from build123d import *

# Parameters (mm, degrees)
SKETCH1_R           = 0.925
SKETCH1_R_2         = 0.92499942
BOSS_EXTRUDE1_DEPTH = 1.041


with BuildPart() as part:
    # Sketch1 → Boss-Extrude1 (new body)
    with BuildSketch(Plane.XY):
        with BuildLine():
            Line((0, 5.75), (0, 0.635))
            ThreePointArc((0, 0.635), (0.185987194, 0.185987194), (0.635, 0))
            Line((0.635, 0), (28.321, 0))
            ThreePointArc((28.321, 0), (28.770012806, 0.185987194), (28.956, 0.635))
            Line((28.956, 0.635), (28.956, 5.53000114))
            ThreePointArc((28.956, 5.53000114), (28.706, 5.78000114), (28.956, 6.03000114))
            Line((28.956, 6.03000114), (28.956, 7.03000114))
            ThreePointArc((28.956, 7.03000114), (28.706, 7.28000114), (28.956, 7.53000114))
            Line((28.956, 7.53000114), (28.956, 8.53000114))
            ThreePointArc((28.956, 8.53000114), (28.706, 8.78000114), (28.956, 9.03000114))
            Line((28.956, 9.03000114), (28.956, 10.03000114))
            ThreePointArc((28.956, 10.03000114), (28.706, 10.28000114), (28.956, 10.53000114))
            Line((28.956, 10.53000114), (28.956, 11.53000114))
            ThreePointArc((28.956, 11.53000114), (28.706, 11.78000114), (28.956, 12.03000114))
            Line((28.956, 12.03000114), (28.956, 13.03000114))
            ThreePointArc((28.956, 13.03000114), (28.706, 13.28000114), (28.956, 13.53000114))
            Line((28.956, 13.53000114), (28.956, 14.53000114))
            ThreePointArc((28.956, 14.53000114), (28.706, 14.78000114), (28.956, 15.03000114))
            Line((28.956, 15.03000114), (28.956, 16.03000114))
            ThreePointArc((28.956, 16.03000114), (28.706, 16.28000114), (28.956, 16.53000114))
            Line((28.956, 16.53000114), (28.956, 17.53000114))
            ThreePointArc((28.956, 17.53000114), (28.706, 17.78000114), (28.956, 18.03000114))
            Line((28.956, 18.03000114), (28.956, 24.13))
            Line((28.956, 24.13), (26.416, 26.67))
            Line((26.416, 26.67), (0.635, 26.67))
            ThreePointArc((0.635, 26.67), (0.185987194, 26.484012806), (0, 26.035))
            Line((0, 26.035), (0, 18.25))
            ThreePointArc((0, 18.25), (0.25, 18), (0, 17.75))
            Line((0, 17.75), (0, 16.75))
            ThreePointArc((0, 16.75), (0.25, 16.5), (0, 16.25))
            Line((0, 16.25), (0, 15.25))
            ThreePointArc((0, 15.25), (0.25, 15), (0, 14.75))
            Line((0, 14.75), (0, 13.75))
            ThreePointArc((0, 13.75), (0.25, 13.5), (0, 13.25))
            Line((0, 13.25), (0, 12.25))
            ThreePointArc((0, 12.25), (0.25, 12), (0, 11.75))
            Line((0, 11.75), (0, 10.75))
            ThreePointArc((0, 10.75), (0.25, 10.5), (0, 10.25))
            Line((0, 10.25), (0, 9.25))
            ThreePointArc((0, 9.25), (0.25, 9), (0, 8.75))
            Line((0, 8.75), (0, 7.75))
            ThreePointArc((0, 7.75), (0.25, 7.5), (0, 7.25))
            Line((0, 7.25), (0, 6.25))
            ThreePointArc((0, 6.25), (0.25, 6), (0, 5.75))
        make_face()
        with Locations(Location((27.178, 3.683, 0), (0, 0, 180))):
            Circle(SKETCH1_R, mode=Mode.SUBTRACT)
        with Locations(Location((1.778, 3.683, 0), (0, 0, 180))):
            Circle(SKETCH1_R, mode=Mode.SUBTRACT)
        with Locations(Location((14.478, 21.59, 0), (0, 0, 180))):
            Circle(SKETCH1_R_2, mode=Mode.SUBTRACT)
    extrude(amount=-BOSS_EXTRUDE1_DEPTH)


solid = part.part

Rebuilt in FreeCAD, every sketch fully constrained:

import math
import FreeCAD as App
import Part
import Sketcher
from FreeCAD import Vector
Q = App.Units.Quantity

doc = App.newDocument("Part")
body = doc.addObject("PartDesign::Body", "Body")

# Sketch on XY plane
sketch1 = body.newObject("Sketcher::SketchObject", "Sketch")
sketch1.AttachmentSupport = (doc.getObject("XY_Plane"), [""])
sketch1.MapMode = "FlatFace"
sketch1.addGeometry([
    Part.LineSegment(Vector(0, 5.75, 0), Vector(0, 0.64, 0)),  # 0
    Part.ArcOfCircle(Part.Circle(Vector(0.64, 0.64, 0), Vector(0, 0, 1), 0.64), math.radians(180), math.radians(270)),  # 1
    Part.LineSegment(Vector(0.64, 0, 0), Vector(28.32, 0, 0)),  # 2
    Part.ArcOfCircle(Part.Circle(Vector(28.32, 0.64, 0), Vector(0, 0, 1), 0.64), math.radians(-90), math.radians(0)),  # 3
    Part.LineSegment(Vector(28.96, 0.64, 0), Vector(28.96, 5.53, 0)),  # 4
    Part.ArcOfCircle(Part.Circle(Vector(28.96, 5.78, 0), Vector(0, 0, 1), 0.25), math.radians(90), math.radians(270)),  # 5
    Part.LineSegment(Vector(28.96, 6.03, 0), Vector(28.96, 7.03, 0)),  # 6
    Part.ArcOfCircle(Part.Circle(Vector(28.96, 7.28, 0), Vector(0, 0, 1), 0.25), math.radians(90), math.radians(270)),  # 7
    Part.LineSegment(Vector(28.96, 7.53, 0), Vector(28.96, 8.53, 0)),  # 8
    Part.ArcOfCircle(Part.Circle(Vector(28.96, 8.78, 0), Vector(0, 0, 1), 0.25), math.radians(90), math.radians(270)),  # 9
    Part.LineSegment(Vector(28.96, 9.03, 0), Vector(28.96, 10.03, 0)),  # 10
    Part.ArcOfCircle(Part.Circle(Vector(28.96, 10.28, 0), Vector(0, 0, 1), 0.25), math.radians(90), math.radians(270)),  # 11
    Part.LineSegment(Vector(28.96, 10.53, 0), Vector(28.96, 11.53, 0)),  # 12
    Part.ArcOfCircle(Part.Circle(Vector(28.96, 11.78, 0), Vector(0, 0, 1), 0.25), math.radians(90), math.radians(270)),  # 13
    Part.LineSegment(Vector(28.96, 12.03, 0), Vector(28.96, 13.03, 0)),  # 14
    Part.ArcOfCircle(Part.Circle(Vector(28.96, 13.28, 0), Vector(0, 0, 1), 0.25), math.radians(90), math.radians(270)),  # 15
    Part.LineSegment(Vector(28.96, 13.53, 0), Vector(28.96, 14.53, 0)),  # 16
    Part.ArcOfCircle(Part.Circle(Vector(28.96, 14.78, 0), Vector(0, 0, 1), 0.25), math.radians(90), math.radians(270)),  # 17
    Part.LineSegment(Vector(28.96, 15.03, 0), Vector(28.96, 16.03, 0)),  # 18
    Part.ArcOfCircle(Part.Circle(Vector(28.96, 16.28, 0), Vector(0, 0, 1), 0.25), math.radians(90), math.radians(270)),  # 19
    Part.LineSegment(Vector(28.96, 16.53, 0), Vector(28.96, 17.53, 0)),  # 20
    Part.ArcOfCircle(Part.Circle(Vector(28.96, 17.78, 0), Vector(0, 0, 1), 0.25), math.radians(90), math.radians(270)),  # 21
    Part.LineSegment(Vector(28.96, 18.03, 0), Vector(28.96, 24.13, 0)),  # 22
    Part.LineSegment(Vector(28.96, 24.13, 0), Vector(26.42, 26.67, 0)),  # 23
    Part.LineSegment(Vector(26.42, 26.67, 0), Vector(0.64, 26.67, 0)),  # 24
    Part.ArcOfCircle(Part.Circle(Vector(0.64, 26.04, 0), Vector(0, 0, 1), 0.64), math.radians(90), math.radians(180)),  # 25
    Part.LineSegment(Vector(0, 26.04, 0), Vector(0, 18.25, 0)),  # 26
    Part.ArcOfCircle(Part.Circle(Vector(0, 18, 0), Vector(0, 0, 1), 0.25), math.radians(-90), math.radians(90)),  # 27
    Part.LineSegment(Vector(0, 17.75, 0), Vector(0, 16.75, 0)),  # 28
    Part.ArcOfCircle(Part.Circle(Vector(0, 16.5, 0), Vector(0, 0, 1), 0.25), math.radians(-90), math.radians(90)),  # 29
    Part.LineSegment(Vector(0, 16.25, 0), Vector(0, 15.25, 0)),  # 30
    Part.ArcOfCircle(Part.Circle(Vector(0, 15, 0), Vector(0, 0, 1), 0.25), math.radians(-90), math.radians(90)),  # 31
    Part.LineSegment(Vector(0, 14.75, 0), Vector(0, 13.75, 0)),  # 32
    Part.ArcOfCircle(Part.Circle(Vector(0, 13.5, 0), Vector(0, 0, 1), 0.25), math.radians(-90), math.radians(90)),  # 33
    Part.LineSegment(Vector(0, 13.25, 0), Vector(0, 12.25, 0)),  # 34
    Part.ArcOfCircle(Part.Circle(Vector(0, 12, 0), Vector(0, 0, 1), 0.25), math.radians(-90), math.radians(90)),  # 35
    Part.LineSegment(Vector(0, 11.75, 0), Vector(0, 10.75, 0)),  # 36
    Part.ArcOfCircle(Part.Circle(Vector(0, 10.5, 0), Vector(0, 0, 1), 0.25), math.radians(-90), math.radians(90)),  # 37
    Part.LineSegment(Vector(0, 10.25, 0), Vector(0, 9.25, 0)),  # 38
    Part.ArcOfCircle(Part.Circle(Vector(0, 9, 0), Vector(0, 0, 1), 0.25), math.radians(-90), math.radians(90)),  # 39
    Part.LineSegment(Vector(0, 8.75, 0), Vector(0, 7.75, 0)),  # 40
    Part.ArcOfCircle(Part.Circle(Vector(0, 7.5, 0), Vector(0, 0, 1), 0.25), math.radians(-90), math.radians(90)),  # 41
    Part.LineSegment(Vector(0, 7.25, 0), Vector(0, 6.25, 0)),  # 42
    Part.ArcOfCircle(Part.Circle(Vector(0, 6, 0), Vector(0, 0, 1), 0.25), math.radians(-90), math.radians(90)),  # 43
    Part.Circle(Vector(1.78, 3.68, 0), Vector(0, 0, 1), 0.93),  # 44
    Part.Circle(Vector(27.18, 3.68, 0), Vector(0, 0, 1), 0.93),  # 45
    Part.Circle(Vector(14.48, 21.59, 0), Vector(0, 0, 1), 0.92),  # 46
], False)
sketch1.addConstraint([
    Sketcher.Constraint("Tangent", 0, 2, 1, 1),
    Sketcher.Constraint("Tangent", 1, 2, 2, 1),
    Sketcher.Constraint("Tangent", 2, 2, 3, 1),
    Sketcher.Constraint("Tangent", 3, 2, 4, 1),
    Sketcher.Constraint("Coincident", 4, 2, 5, 2),
    Sketcher.Constraint("Coincident", 5, 1, 6, 1),
    Sketcher.Constraint("Coincident", 6, 2, 7, 2),
    Sketcher.Constraint("Coincident", 7, 1, 8, 1),
    Sketcher.Constraint("Coincident", 8, 2, 9, 2),
    Sketcher.Constraint("Coincident", 9, 1, 10, 1),
    Sketcher.Constraint("Coincident", 10, 2, 11, 2),
    Sketcher.Constraint("Coincident", 11, 1, 12, 1),
    Sketcher.Constraint("Coincident", 12, 2, 13, 2),
    Sketcher.Constraint("Coincident", 13, 1, 14, 1),
    Sketcher.Constraint("Coincident", 14, 2, 15, 2),
    Sketcher.Constraint("Coincident", 15, 1, 16, 1),
    Sketcher.Constraint("Coincident", 16, 2, 17, 2),
    Sketcher.Constraint("Coincident", 17, 1, 18, 1),
    Sketcher.Constraint("Coincident", 18, 2, 19, 2),
    Sketcher.Constraint("Coincident", 19, 1, 20, 1),
    Sketcher.Constraint("Coincident", 20, 2, 21, 2),
    Sketcher.Constraint("Coincident", 21, 1, 22, 1),
    Sketcher.Constraint("Coincident", 22, 2, 23, 1),
    Sketcher.Constraint("Coincident", 23, 2, 24, 1),
    Sketcher.Constraint("Tangent", 24, 2, 25, 1),
    Sketcher.Constraint("Tangent", 25, 2, 26, 1),
    Sketcher.Constraint("Coincident", 26, 2, 27, 2),
    Sketcher.Constraint("Coincident", 27, 1, 28, 1),
    Sketcher.Constraint("Coincident", 28, 2, 29, 2),
    Sketcher.Constraint("Coincident", 29, 1, 30, 1),
    Sketcher.Constraint("Coincident", 30, 2, 31, 2),
    Sketcher.Constraint("Coincident", 31, 1, 32, 1),
    Sketcher.Constraint("Coincident", 32, 2, 33, 2),
    Sketcher.Constraint("Coincident", 33, 1, 34, 1),
    Sketcher.Constraint("Coincident", 34, 2, 35, 2),
    Sketcher.Constraint("Coincident", 35, 1, 36, 1),
    Sketcher.Constraint("Coincident", 36, 2, 37, 2),
    Sketcher.Constraint("Coincident", 37, 1, 38, 1),
    Sketcher.Constraint("Coincident", 38, 2, 39, 2),
    Sketcher.Constraint("Coincident", 39, 1, 40, 1),
    Sketcher.Constraint("Coincident", 40, 2, 41, 2),
    Sketcher.Constraint("Coincident", 41, 1, 42, 1),
    Sketcher.Constraint("Coincident", 42, 2, 43, 2),
    Sketcher.Constraint("Coincident", 43, 1, 0, 1),
    Sketcher.Constraint("Vertical", 0),
    Sketcher.Constraint("Horizontal", 2),
    Sketcher.Constraint("Vertical", 4),
    Sketcher.Constraint("Vertical", 6),
    Sketcher.Constraint("Vertical", 8),
    Sketcher.Constraint("Vertical", 10),
    Sketcher.Constraint("Vertical", 12),
    Sketcher.Constraint("Vertical", 14),
    Sketcher.Constraint("Vertical", 16),
    Sketcher.Constraint("Vertical", 18),
    Sketcher.Constraint("Vertical", 20),
    Sketcher.Constraint("Vertical", 22),
    Sketcher.Constraint("Horizontal", 24),
    Sketcher.Constraint("Vertical", 26),
    Sketcher.Constraint("Vertical", 28),
    Sketcher.Constraint("Vertical", 30),
    Sketcher.Constraint("Vertical", 32),
    Sketcher.Constraint("Vertical", 34),
    Sketcher.Constraint("Vertical", 36),
    Sketcher.Constraint("Vertical", 38),
    Sketcher.Constraint("Vertical", 40),
    Sketcher.Constraint("Vertical", 42),
    Sketcher.Constraint("Equal", 1, 3),
    Sketcher.Constraint("Equal", 5, 7),
    Sketcher.Constraint("Equal", 7, 9),
    Sketcher.Constraint("Equal", 9, 11),
    Sketcher.Constraint("Equal", 11, 13),
    Sketcher.Constraint("Equal", 13, 15),
    Sketcher.Constraint("Equal", 15, 17),
    Sketcher.Constraint("Equal", 17, 19),
    Sketcher.Constraint("Equal", 19, 21),
    Sketcher.Constraint("Equal", 3, 25),
    Sketcher.Constraint("Equal", 21, 27),
    Sketcher.Constraint("Equal", 27, 29),
    Sketcher.Constraint("Equal", 29, 31),
    Sketcher.Constraint("Equal", 31, 33),
    Sketcher.Constraint("Equal", 33, 35),
    Sketcher.Constraint("Equal", 35, 37),
    Sketcher.Constraint("Equal", 37, 39),
    Sketcher.Constraint("Equal", 39, 41),
    Sketcher.Constraint("Equal", 41, 43),
    Sketcher.Constraint("Equal", 44, 45),
    Sketcher.Constraint("Equal", 45, 46),
    Sketcher.Constraint("PointOnObject", 27, 3, -2),
    Sketcher.Constraint("PointOnObject", 29, 3, -2),
    Sketcher.Constraint("PointOnObject", 31, 3, -2),
    Sketcher.Constraint("PointOnObject", 33, 3, -2),
    Sketcher.Constraint("PointOnObject", 35, 3, -2),
    Sketcher.Constraint("PointOnObject", 37, 3, -2),
    Sketcher.Constraint("PointOnObject", 39, 3, -2),
    Sketcher.Constraint("PointOnObject", 41, 3, -2),
    Sketcher.Constraint("PointOnObject", 43, 3, -2),
    Sketcher.Constraint("PointOnObject", 0, 2, -2),
    Sketcher.Constraint("PointOnObject", 1, 2, -1),
    Sketcher.Constraint("PointOnObject", 25, 2, -2),
    Sketcher.Constraint("PointOnObject", 27, 1, -2),
    Sketcher.Constraint("PointOnObject", 29, 1, -2),
    Sketcher.Constraint("PointOnObject", 31, 1, -2),
    Sketcher.Constraint("PointOnObject", 33, 1, -2),
    Sketcher.Constraint("PointOnObject", 35, 1, -2),
    Sketcher.Constraint("PointOnObject", 37, 1, -2),
    Sketcher.Constraint("PointOnObject", 39, 1, -2),
    Sketcher.Constraint("PointOnObject", 41, 1, -2),
    Sketcher.Constraint("Horizontal", 44, 3, 45, 3),
    Sketcher.Constraint("Vertical", 5, 3, 7, 3),
    Sketcher.Constraint("Vertical", 7, 3, 9, 3),
    Sketcher.Constraint("Vertical", 9, 3, 11, 3),
    Sketcher.Constraint("Vertical", 11, 3, 13, 3),
    Sketcher.Constraint("Vertical", 13, 3, 15, 3),
    Sketcher.Constraint("Vertical", 15, 3, 17, 3),
    Sketcher.Constraint("Vertical", 17, 3, 19, 3),
    Sketcher.Constraint("Vertical", 19, 3, 21, 3),
    Sketcher.Constraint("Vertical", 21, 3, 3, 2),
    Sketcher.Constraint("Vertical", 4, 2, 5, 1),
    Sketcher.Constraint("Vertical", 6, 2, 7, 1),
    Sketcher.Constraint("Vertical", 8, 2, 9, 1),
    Sketcher.Constraint("Vertical", 10, 2, 11, 1),
    Sketcher.Constraint("Vertical", 12, 2, 13, 1),
    Sketcher.Constraint("Vertical", 14, 2, 15, 1),
    Sketcher.Constraint("Vertical", 16, 2, 17, 1),
    Sketcher.Constraint("Vertical", 18, 2, 19, 1),
    Sketcher.Constraint("Vertical", 20, 2, 21, 1),
    Sketcher.Constraint("Equal", 6, 8),
    Sketcher.Constraint("Equal", 8, 10),
    Sketcher.Constraint("Equal", 10, 12),
    Sketcher.Constraint("Equal", 12, 14),
    Sketcher.Constraint("Equal", 14, 16),
    Sketcher.Constraint("Equal", 16, 18),
    Sketcher.Constraint("Equal", 18, 20),
    Sketcher.Constraint("Equal", 20, 28),
    Sketcher.Constraint("Equal", 28, 30),
    Sketcher.Constraint("Equal", 30, 32),
    Sketcher.Constraint("Equal", 32, 34),
    Sketcher.Constraint("Equal", 34, 36),
    Sketcher.Constraint("Equal", 36, 38),
    Sketcher.Constraint("Equal", 38, 40),
    Sketcher.Constraint("Equal", 40, 42),
    Sketcher.Constraint("Diameter", 44, Q("1.85 mm")),
    Sketcher.Constraint("DistanceY", 6, 1, 6, 2, Q("1 mm")),
    Sketcher.Constraint("Angle", 23, Q("135 deg")),
    Sketcher.Constraint("Radius", 5, Q("0.25 mm")),
    Sketcher.Constraint("DistanceY", 22, 1, 22, 2, Q("6.099999 mm")),
    Sketcher.Constraint("DistanceY", -1, 1, 27, 3, Q("18 mm")),
    Sketcher.Constraint("Radius", 1, Q("0.635 mm")),
    Sketcher.Constraint("DistanceX", 2, 1, 2, 2, Q("27.686 mm")),
    Sketcher.Constraint("DistanceX", 24, 2, 24, 1, Q("25.781 mm")),
    Sketcher.Constraint("DistanceY", 4, 1, 4, 2, Q("4.895001 mm")),
    Sketcher.Constraint("DistanceY", -1, 1, 46, 3, Q("21.59 mm")),
    Sketcher.Constraint("DistanceX", -1, 1, 44, 3, Q("1.778 mm")),
    Sketcher.Constraint("DistanceY", -1, 1, 44, 3, Q("3.683 mm")),
    Sketcher.Constraint("DistanceX", -1, 1, 45, 3, Q("27.178 mm")),
    Sketcher.Constraint("DistanceX", -1, 1, 46, 3, Q("14.478 mm")),
])
pad1 = body.newObject("PartDesign::Pad", "Pad")
pad1.Profile = sketch1
pad1.Length = 1.041
pad1.Reversed = True

doc.recompute()
